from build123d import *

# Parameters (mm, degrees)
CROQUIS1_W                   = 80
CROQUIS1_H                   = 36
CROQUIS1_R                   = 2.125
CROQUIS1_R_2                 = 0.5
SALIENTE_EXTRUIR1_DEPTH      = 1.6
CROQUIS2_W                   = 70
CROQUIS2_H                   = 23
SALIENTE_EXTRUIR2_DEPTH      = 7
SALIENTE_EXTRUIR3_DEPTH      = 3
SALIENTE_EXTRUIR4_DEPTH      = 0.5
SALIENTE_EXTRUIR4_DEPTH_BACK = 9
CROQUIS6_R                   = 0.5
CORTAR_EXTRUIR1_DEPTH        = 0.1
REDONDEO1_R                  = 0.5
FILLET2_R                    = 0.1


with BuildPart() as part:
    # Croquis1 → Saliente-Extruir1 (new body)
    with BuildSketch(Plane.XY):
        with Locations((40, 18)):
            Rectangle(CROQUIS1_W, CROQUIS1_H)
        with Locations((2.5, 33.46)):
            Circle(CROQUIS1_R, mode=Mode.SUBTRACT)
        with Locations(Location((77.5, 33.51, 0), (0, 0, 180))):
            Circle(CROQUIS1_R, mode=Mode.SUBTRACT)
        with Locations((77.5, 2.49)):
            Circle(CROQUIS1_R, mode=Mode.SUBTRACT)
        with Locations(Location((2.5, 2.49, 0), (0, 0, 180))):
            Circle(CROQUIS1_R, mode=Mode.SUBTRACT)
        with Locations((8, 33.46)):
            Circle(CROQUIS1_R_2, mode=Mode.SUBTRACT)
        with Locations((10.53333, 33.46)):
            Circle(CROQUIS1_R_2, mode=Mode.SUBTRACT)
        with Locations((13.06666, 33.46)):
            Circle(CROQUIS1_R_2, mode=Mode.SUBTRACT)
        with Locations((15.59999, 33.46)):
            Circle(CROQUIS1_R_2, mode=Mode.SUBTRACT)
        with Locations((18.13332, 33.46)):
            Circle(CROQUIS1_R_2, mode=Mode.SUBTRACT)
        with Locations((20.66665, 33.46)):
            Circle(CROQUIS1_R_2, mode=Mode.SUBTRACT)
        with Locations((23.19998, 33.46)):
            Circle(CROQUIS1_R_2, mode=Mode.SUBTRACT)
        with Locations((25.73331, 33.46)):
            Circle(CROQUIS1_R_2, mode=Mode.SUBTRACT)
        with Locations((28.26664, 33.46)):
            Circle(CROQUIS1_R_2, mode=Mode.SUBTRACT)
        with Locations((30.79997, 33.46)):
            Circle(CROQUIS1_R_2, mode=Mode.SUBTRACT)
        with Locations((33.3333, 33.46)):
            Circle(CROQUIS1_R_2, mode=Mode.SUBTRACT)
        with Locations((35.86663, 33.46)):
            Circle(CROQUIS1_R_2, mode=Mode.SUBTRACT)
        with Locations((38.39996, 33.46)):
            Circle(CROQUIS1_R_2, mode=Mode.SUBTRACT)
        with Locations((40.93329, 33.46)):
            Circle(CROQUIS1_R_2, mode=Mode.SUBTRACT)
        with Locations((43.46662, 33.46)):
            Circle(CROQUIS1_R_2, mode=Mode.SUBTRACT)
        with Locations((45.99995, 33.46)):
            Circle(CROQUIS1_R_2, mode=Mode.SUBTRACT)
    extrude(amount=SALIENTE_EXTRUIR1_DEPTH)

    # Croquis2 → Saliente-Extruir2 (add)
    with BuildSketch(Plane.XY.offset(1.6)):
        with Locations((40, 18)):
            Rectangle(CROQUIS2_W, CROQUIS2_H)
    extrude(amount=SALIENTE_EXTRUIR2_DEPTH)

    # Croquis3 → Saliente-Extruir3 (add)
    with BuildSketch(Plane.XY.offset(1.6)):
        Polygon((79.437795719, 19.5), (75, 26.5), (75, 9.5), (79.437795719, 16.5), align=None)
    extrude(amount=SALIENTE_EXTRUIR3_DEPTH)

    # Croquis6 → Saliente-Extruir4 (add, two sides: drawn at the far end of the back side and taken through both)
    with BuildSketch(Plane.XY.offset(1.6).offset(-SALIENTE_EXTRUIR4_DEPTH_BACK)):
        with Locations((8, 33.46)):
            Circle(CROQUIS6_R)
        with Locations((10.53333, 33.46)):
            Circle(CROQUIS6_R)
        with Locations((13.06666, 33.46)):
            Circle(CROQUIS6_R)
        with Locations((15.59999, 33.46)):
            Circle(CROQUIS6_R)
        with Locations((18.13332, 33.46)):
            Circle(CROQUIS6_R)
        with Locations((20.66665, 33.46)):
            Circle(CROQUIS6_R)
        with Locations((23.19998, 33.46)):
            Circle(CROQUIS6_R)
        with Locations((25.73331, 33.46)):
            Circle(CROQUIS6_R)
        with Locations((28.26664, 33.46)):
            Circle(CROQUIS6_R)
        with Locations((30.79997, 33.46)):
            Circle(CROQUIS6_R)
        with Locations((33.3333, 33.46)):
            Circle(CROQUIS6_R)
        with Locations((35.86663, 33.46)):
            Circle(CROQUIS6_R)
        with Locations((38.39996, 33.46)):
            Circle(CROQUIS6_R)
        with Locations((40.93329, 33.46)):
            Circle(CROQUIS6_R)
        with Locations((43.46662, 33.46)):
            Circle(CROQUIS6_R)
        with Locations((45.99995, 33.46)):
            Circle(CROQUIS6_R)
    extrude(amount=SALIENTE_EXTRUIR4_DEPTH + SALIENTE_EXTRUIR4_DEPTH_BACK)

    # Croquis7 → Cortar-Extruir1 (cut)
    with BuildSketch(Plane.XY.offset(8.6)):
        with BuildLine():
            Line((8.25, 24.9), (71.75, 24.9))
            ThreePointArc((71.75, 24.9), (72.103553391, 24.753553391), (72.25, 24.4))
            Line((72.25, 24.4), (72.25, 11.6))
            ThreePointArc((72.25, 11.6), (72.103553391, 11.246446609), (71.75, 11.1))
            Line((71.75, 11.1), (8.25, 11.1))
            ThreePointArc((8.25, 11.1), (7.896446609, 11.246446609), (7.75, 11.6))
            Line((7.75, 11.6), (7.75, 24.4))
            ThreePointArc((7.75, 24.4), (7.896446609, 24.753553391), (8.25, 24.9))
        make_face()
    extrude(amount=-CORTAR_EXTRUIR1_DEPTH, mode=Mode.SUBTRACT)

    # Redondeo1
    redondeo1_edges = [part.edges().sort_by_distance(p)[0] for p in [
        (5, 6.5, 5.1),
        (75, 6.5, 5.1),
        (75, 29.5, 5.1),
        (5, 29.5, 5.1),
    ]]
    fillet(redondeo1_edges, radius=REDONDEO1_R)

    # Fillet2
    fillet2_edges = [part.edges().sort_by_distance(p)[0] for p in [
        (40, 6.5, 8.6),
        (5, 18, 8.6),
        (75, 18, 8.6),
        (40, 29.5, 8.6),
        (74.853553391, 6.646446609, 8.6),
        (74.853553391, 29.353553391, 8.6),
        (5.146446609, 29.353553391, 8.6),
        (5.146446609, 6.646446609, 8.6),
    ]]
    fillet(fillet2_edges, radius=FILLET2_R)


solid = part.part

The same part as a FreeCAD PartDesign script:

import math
import FreeCAD as App
import Part
import Sketcher

V = App.Vector
Q = App.Units.Quantity


def edges_at(feature, points):
    """Names of the edges that pass closest to the given points."""
    edges = feature.Shape.Edges
    near = lambda p: min(range(len(edges)), key=lambda i: edges[i].distToShape(Part.Vertex(*p))[0])
    return sorted({f"Edge{near(p) + 1}" for p in points})

doc = App.newDocument("Part")
params = doc.addObject("Spreadsheet::Sheet", "Params")
for row, (alias, value) in enumerate([
    ("sketch1_diameter", "1 mm"),
    ("sketch1_diameter2", "4.25 mm"),
    ("sketch1_width", "80 mm"),
    ("sketch1_height", "36 mm"),
    ("pad1_length", "1.6 mm"),
    ("sketch2_width", "70 mm"),
    ("sketch2_height", "23 mm"),
    ("pad2_length", "7 mm"),
    ("sketch3_height", "17 mm"),
    ("sketch3_height2", "3 mm"),
    ("pad3_length", "3 mm"),
    ("sketch4_diameter", "1 mm"),
    ("pad4_length", "0.5 mm"),
    ("pad4_length2", "9 mm"),
    ("sketch5_radius", "0.5 mm"),
    ("sketch5_width", "63.5 mm"),
    ("sketch5_height", "12.8 mm"),
    ("pocket1_length", "0.1 mm"),
    ("fillet_radius", "0.5 mm"),
    ("fillet2_radius", "0.1 mm"),
], start=1):
    params.set(f"A{row}", alias)
    params.set(f"B{row}", "=" + value)
    params.setAlias(f"B{row}", alias)

body = doc.addObject("PartDesign::Body", "Body")

# Sketch on XY plane
sketch1 = body.newObject("Sketcher::SketchObject", "Sketch")
sketch1.AttachmentSupport = (doc.getObject("XY_Plane"), [""])
sketch1.MapMode = "FlatFace"
sketch1.addGeometry(Part.LineSegment(V(0, 36, 0), V(0, 0, 0)), False)
sketch1.addGeometry(Part.LineSegment(V(0, 0, 0), V(80, 0, 0)), False)
sketch1.addGeometry(Part.LineSegment(V(80, 0, 0), V(80, 36, 0)), False)
sketch1.addGeometry(Part.LineSegment(V(80, 36, 0), V(0, 36, 0)), False)
sketch1.addGeometry(Part.Circle(V(2.5, 2.5, 0), V(0, 0, 1), 2.1), False)
sketch1.addGeometry(Part.Circle(V(77.5, 2.5, 0), V(0, 0, 1), 2.1), False)
sketch1.addGeometry(Part.Circle(V(2.5, 33.5, 0), V(0, 0, 1), 2.1), False)
sketch1.addGeometry(Part.Circle(V(8, 33.5, 0), V(0, 0, 1), 0.5), False)
sketch1.addGeometry(Part.Circle(V(10.5, 33.5, 0), V(0, 0, 1), 0.5), False)
sketch1.addGeometry(Part.Circle(V(13.1, 33.5, 0), V(0, 0, 1), 0.5), False)
sketch1.addGeometry(Part.Circle(V(15.6, 33.5, 0), V(0, 0, 1), 0.5), False)
sketch1.addGeometry(Part.Circle(V(18.1, 33.5, 0), V(0, 0, 1), 0.5), False)
sketch1.addGeometry(Part.Circle(V(20.7, 33.5, 0), V(0, 0, 1), 0.5), False)
sketch1.addGeometry(Part.Circle(V(23.2, 33.5, 0), V(0, 0, 1), 0.5), False)
sketch1.addGeometry(Part.Circle(V(25.7, 33.5, 0), V(0, 0, 1), 0.5), False)
sketch1.addGeometry(Part.Circle(V(28.3, 33.5, 0), V(0, 0, 1), 0.5), False)
sketch1.addGeometry(Part.Circle(V(30.8, 33.5, 0), V(0, 0, 1), 0.5), False)
sketch1.addGeometry(Part.Circle(V(33.3, 33.5, 0), V(0, 0, 1), 0.5), False)
sketch1.addGeometry(Part.Circle(V(35.9, 33.5, 0), V(0, 0, 1), 0.5), False)
sketch1.addGeometry(Part.Circle(V(38.4, 33.5, 0), V(0, 0, 1), 0.5), False)
sketch1.addGeometry(Part.Circle(V(40.9, 33.5, 0), V(0, 0, 1), 0.5), False)
sketch1.addGeometry(Part.Circle(V(43.5, 33.5, 0), V(0, 0, 1), 0.5), False)
sketch1.addGeometry(Part.Circle(V(46, 33.5, 0), V(0, 0, 1), 0.5), False)
sketch1.addGeometry(Part.Circle(V(77.5, 33.5, 0), V(0, 0, 1), 2.1), False)
sketch1.addConstraint(Sketcher.Constraint("Coincident", 0, 2, 1, 1))
sketch1.addConstraint(Sketcher.Constraint("Coincident", 1, 2, 2, 1))
sketch1.addConstraint(Sketcher.Constraint("Coincident", 2, 2, 3, 1))
sketch1.addConstraint(Sketcher.Constraint("Coincident", 3, 2, 0, 1))
sketch1.addConstraint(Sketcher.Constraint("Vertical", 0))
sketch1.addConstraint(Sketcher.Constraint("Horizontal", 1))
sketch1.addConstraint(Sketcher.Constraint("Vertical", 2))
sketch1.addConstraint(Sketcher.Constraint("Horizontal", 3))
sketch1.addConstraint(Sketcher.Constraint("Coincident", 0, 2, -1, 1))
sketch1.addConstraint(Sketcher.Constraint("Equal", 4, 5))
sketch1.addConstraint(Sketcher.Constraint("Equal", 5, 6))
sketch1.addConstraint(Sketcher.Constraint("Equal", 7, 8))
sketch1.addConstraint(Sketcher.Constraint("Equal", 8, 9))
sketch1.addConstraint(Sketcher.Constraint("Equal", 9, 10))
sketch1.addConstraint(Sketcher.Constraint("Equal", 10, 11))
sketch1.addConstraint(Sketcher.Constraint("Equal", 11, 12))
sketch1.addConstraint(Sketcher.Constraint("Equal", 12, 13))
sketch1.addConstraint(Sketcher.Constraint("Equal", 13, 14))
sketch1.addConstraint(Sketcher.Constraint("Equal", 14, 15))
sketch1.addConstraint(Sketcher.Constraint("Equal", 15, 16))
sketch1.addConstraint(Sketcher.Constraint("Equal", 16, 17))
sketch1.addConstraint(Sketcher.Constraint("Equal", 17, 18))
sketch1.addConstraint(Sketcher.Constraint("Equal", 18, 19))
sketch1.addConstraint(Sketcher.Constraint("Equal", 19, 20))
sketch1.addConstraint(Sketcher.Constraint("Equal", 20, 21))
sketch1.addConstraint(Sketcher.Constraint("Equal", 21, 22))
sketch1.addConstraint(Sketcher.Constraint("Equal", 6, 23))
sketch1.addConstraint(Sketcher.Constraint("Horizontal", 4, 3, 5, 3))
sketch1.addConstraint(Sketcher.Constraint("Horizontal", 6, 3, 7, 3))
sketch1.addConstraint(Sketcher.Constraint("Horizontal", 7, 3, 8, 3))
sketch1.addConstraint(Sketcher.Constraint("Horizontal", 8, 3, 9, 3))
sketch1.addConstraint(Sketcher.Constraint("Horizontal", 9, 3, 10, 3))
sketch1.addConstraint(Sketcher.Constraint("Horizontal", 10, 3, 11, 3))
sketch1.addConstraint(Sketcher.Constraint("Horizontal", 11, 3, 12, 3))
sketch1.addConstraint(Sketcher.Constraint("Horizontal", 12, 3, 13, 3))
sketch1.addConstraint(Sketcher.Constraint("Horizontal", 13, 3, 14, 3))
sketch1.addConstraint(Sketcher.Constraint("Horizontal", 14, 3, 15, 3))
sketch1.addConstraint(Sketcher.Constraint("Horizontal", 15, 3, 16, 3))
sketch1.addConstraint(Sketcher.Constraint("Horizontal", 16, 3, 17, 3))
sketch1.addConstraint(Sketcher.Constraint("Horizontal", 17, 3, 18, 3))
sketch1.addConstraint(Sketcher.Constraint("Horizontal", 18, 3, 19, 3))
sketch1.addConstraint(Sketcher.Constraint("Horizontal", 19, 3, 20, 3))
sketch1.addConstraint(Sketcher.Constraint("Horizontal", 20, 3, 21, 3))
sketch1.addConstraint(Sketcher.Constraint("Horizontal", 21, 3, 22, 3))
sketch1.addConstraint(Sketcher.Constraint("Vertical", 4, 3, 6, 3))
sketch1.addConstraint(Sketcher.Constraint("Vertical", 5, 3, 23, 3))
sketch1.addConstraint(Sketcher.Constraint("Diameter", 7, Q("1 mm")))
sketch1.addConstraint(Sketcher.Constraint("Diameter", 4, Q("4.25 mm")))
sketch1.addConstraint(Sketcher.Constraint("DistanceX", 1, 1, 1, 2, Q("80 mm")))
sketch1.addConstraint(Sketcher.Constraint("DistanceY", 0, 2, 0, 1, Q("36 mm")))
sketch1.addConstraint(Sketcher.Constraint("DistanceX", -1, 1, 7, 3, Q("8 mm")))
sketch1.addConstraint(Sketcher.Constraint("DistanceX", 4, 3, 5, 3, Q("75 mm")))
sketch1.addConstraint(Sketcher.Constraint("DistanceX", -1, 1, 4, 3, Q("2.5 mm")))
sketch1.addConstraint(Sketcher.Constraint("DistanceY", -1, 1, 4, 3, Q("2.49 mm")))
sketch1.addConstraint(Sketcher.Constraint("DistanceY", -1, 1, 6, 3, Q("33.46 mm")))
sketch1.addConstraint(Sketcher.Constraint("DistanceY", -1, 1, 23, 3, Q("33.51 mm")))
sketch1.addConstraint(Sketcher.Constraint("DistanceX", -1, 1, 17, 3, Q("33.3333 mm")))
sketch1.addConstraint(Sketcher.Constraint("DistanceX", -1, 1, 8, 3, Q("10.53333 mm")))
sketch1.addConstraint(Sketcher.Constraint("DistanceX", -1, 1, 9, 3, Q("13.06666 mm")))
sketch1.addConstraint(Sketcher.Constraint("DistanceX", -1, 1, 10, 3, Q("15.59999 mm")))
sketch1.addConstraint(Sketcher.Constraint("DistanceX", -1, 1, 11, 3, Q("18.13332 mm")))
sketch1.addConstraint(Sketcher.Constraint("DistanceX", -1, 1, 12, 3, Q("20.66665 mm")))
sketch1.addConstraint(Sketcher.Constraint("DistanceX", -1, 1, 13, 3, Q("23.19998 mm")))
sketch1.addConstraint(Sketcher.Constraint("DistanceX", -1, 1, 14, 3, Q("25.73331 mm")))
sketch1.addConstraint(Sketcher.Constraint("DistanceX", -1, 1, 15, 3, Q("28.26664 mm")))
sketch1.addConstraint(Sketcher.Constraint("DistanceX", -1, 1, 16, 3, Q("30.79997 mm")))
sketch1.addConstraint(Sketcher.Constraint("DistanceX", -1, 1, 18, 3, Q("35.86663 mm")))
sketch1.addConstraint(Sketcher.Constraint("DistanceX", -1, 1, 19, 3, Q("38.39996 mm")))
sketch1.addConstraint(Sketcher.Constraint("DistanceX", -1, 1, 20, 3, Q("40.93329 mm")))
sketch1.addConstraint(Sketcher.Constraint("DistanceX", -1, 1, 21, 3, Q("43.46662 mm")))
sketch1.addConstraint(Sketcher.Constraint("DistanceX", -1, 1, 22, 3, Q("45.99995 mm")))
sketch1.setExpression("Constraints[46]", "Params.sketch1_diameter")
sketch1.setExpression("Constraints[47]", "Params.sketch1_diameter2")
sketch1.setExpression("Constraints[48]", "Params.sketch1_width")
sketch1.setExpression("Constraints[49]", "Params.sketch1_height")
pad1 = body.newObject("PartDesign::Pad", "Pad")
pad1.Profile = sketch1
pad1.setExpression("Length", "Params.pad1_length")

# Sketch on XY plane
sketch2 = body.newObject("Sketcher::SketchObject", "Sketch001")
sketch2.AttachmentSupport = (doc.getObject("XY_Plane"), [""])
sketch2.MapMode = "FlatFace"
sketch2.AttachmentOffset = App.Placement(V(0, 0, 1.6), App.Rotation())
sketch2.addGeometry(Part.LineSegment(V(5, 30, 0), V(5, 6, 0)), False)
sketch2.addGeometry(Part.LineSegment(V(5, 6, 0), V(75, 6, 0)), False)
sketch2.addGeometry(Part.LineSegment(V(75, 6, 0), V(75, 30, 0)), False)
sketch2.addGeometry(Part.LineSegment(V(75, 30, 0), V(5, 30, 0)), False)
sketch2.addConstraint(Sketcher.Constraint("Coincident", 0, 2, 1, 1))
sketch2.addConstraint(Sketcher.Constraint("Coincident", 1, 2, 2, 1))
sketch2.addConstraint(Sketcher.Constraint("Coincident", 2, 2, 3, 1))
sketch2.addConstraint(Sketcher.Constraint("Coincident", 3, 2, 0, 1))
sketch2.addConstraint(Sketcher.Constraint("Vertical", 0))
sketch2.addConstraint(Sketcher.Constraint("Horizontal", 1))
sketch2.addConstraint(Sketcher.Constraint("Vertical", 2))
sketch2.addConstraint(Sketcher.Constraint("Horizontal", 3))
sketch2.addConstraint(Sketcher.Constraint("DistanceX", 1, 1, 1, 2, Q("70 mm")))
sketch2.addConstraint(Sketcher.Constraint("DistanceY", 0, 2, 0, 1, Q("23 mm")))
sketch2.addConstraint(Sketcher.Constraint("DistanceX", -1, 1, 0, 2, Q("5 mm")))
sketch2.addConstraint(Sketcher.Constraint("DistanceY", -1, 1, 0, 2, Q("6.5 mm")))
sketch2.setExpression("Constraints[8]", "Params.sketch2_width")
sketch2.setExpression("Constraints[9]", "Params.sketch2_height")
pad2 = body.newObject("PartDesign::Pad", "Pad001")
pad2.Profile = sketch2
pad2.setExpression("Length", "Params.pad2_length")

# Sketch on XY plane
sketch3 = body.newObject("Sketcher::SketchObject", "Sketch002")
sketch3.AttachmentSupport = (doc.getObject("XY_Plane"), [""])
sketch3.MapMode = "FlatFace"
sketch3.AttachmentOffset = App.Placement(V(0, 0, 1.6), App.Rotation())
sketch3.addGeometry(Part.LineSegment(V(79.4, 19.5, 0), V(75, 26.5, 0)), False)
sketch3.addGeometry(Part.LineSegment(V(75, 26.5, 0), V(75, 9.5, 0)), False)
sketch3.addGeometry(Part.LineSegment(V(75, 9.5, 0), V(79.4, 16.5, 0)), False)
sketch3.addGeometry(Part.LineSegment(V(79.4, 16.5, 0), V(79.4, 19.5, 0)), False)
sketch3.addConstraint(Sketcher.Constraint("Coincident", 0, 2, 1, 1))
sketch3.addConstraint(Sketcher.Constraint("Coincident", 1, 2, 2, 1))
sketch3.addConstraint(Sketcher.Constraint("Coincident", 2, 2, 3, 1))
sketch3.addConstraint(Sketcher.Constraint("Coincident", 3, 2, 0, 1))
sketch3.addConstraint(Sketcher.Constraint("Vertical", 1))
sketch3.addConstraint(Sketcher.Constraint("Vertical", 3))
sketch3.addConstraint(Sketcher.Constraint("Equal", 0, 2))
sketch3.addConstraint(Sketcher.Constraint("DistanceY", 1, 2, 1, 1, Q("17 mm")))
sketch3.addConstraint(Sketcher.Constraint("DistanceY", 3, 1, 3, 2, Q("3 mm")))
sketch3.addConstraint(Sketcher.Constraint("DistanceX", -1, 1, 0, 2, Q("75 mm")))
sketch3.addConstraint(Sketcher.Constraint("DistanceY", -1, 1, 0, 2, Q("26.5 mm")))
sketch3.addConstraint(Sketcher.Constraint("Distance", 0, Q("8.288186 mm")))
sketch3.setExpression("Constraints[7]", "Params.sketch3_height")
sketch3.setExpression("Constraints[8]", "Params.sketch3_height2")
pad3 = body.newObject("PartDesign::Pad", "Pad002")
pad3.Profile = sketch3
pad3.setExpression("Length", "Params.pad3_length")

# Sketch on XY plane
sketch4 = body.newObject("Sketcher::SketchObject", "Sketch003")
sketch4.AttachmentSupport = (doc.getObject("XY_Plane"), [""])
sketch4.MapMode = "FlatFace"
sketch4.AttachmentOffset = App.Placement(V(0, 0, 1.6), App.Rotation())
sketch4.addGeometry(Part.Circle(V(8, 33.5, 0), V(0, 0, 1), 0.5), False)
sketch4.addGeometry(Part.Circle(V(10.5, 33.5, 0), V(0, 0, 1), 0.5), False)
sketch4.addGeometry(Part.Circle(V(13.1, 33.5, 0), V(0, 0, 1), 0.5), False)
sketch4.addGeometry(Part.Circle(V(15.6, 33.5, 0), V(0, 0, 1), 0.5), False)
sketch4.addGeometry(Part.Circle(V(18.1, 33.5, 0), V(0, 0, 1), 0.5), False)
sketch4.addGeometry(Part.Circle(V(20.7, 33.5, 0), V(0, 0, 1), 0.5), False)
sketch4.addGeometry(Part.Circle(V(23.2, 33.5, 0), V(0, 0, 1), 0.5), False)
sketch4.addGeometry(Part.Circle(V(25.7, 33.5, 0), V(0, 0, 1), 0.5), False)
sketch4.addGeometry(Part.Circle(V(28.3, 33.5, 0), V(0, 0, 1), 0.5), False)
sketch4.addGeometry(Part.Circle(V(30.8, 33.5, 0), V(0, 0, 1), 0.5), False)
sketch4.addGeometry(Part.Circle(V(33.3, 33.5, 0), V(0, 0, 1), 0.5), False)
sketch4.addGeometry(Part.Circle(V(35.9, 33.5, 0), V(0, 0, 1), 0.5), False)
sketch4.addGeometry(Part.Circle(V(38.4, 33.5, 0), V(0, 0, 1), 0.5), False)
sketch4.addGeometry(Part.Circle(V(40.9, 33.5, 0), V(0, 0, 1), 0.5), False)
sketch4.addGeometry(Part.Circle(V(43.5, 33.5, 0), V(0, 0, 1), 0.5), False)
sketch4.addGeometry(Part.Circle(V(46, 33.5, 0), V(0, 0, 1), 0.5), False)
sketch4.addConstraint(Sketcher.Constraint("Equal", 0, 1))
sketch4.addConstraint(Sketcher.Constraint("Equal", 1, 2))
sketch4.addConstraint(Sketcher.Constraint("Equal", 2, 3))
sketch4.addConstraint(Sketcher.Constraint("Equal", 3, 4))
sketch4.addConstraint(Sketcher.Constraint("Equal", 4, 5))
sketch4.addConstraint(Sketcher.Constraint("Equal", 5, 6))
sketch4.addConstraint(Sketcher.Constraint("Equal", 6, 7))
sketch4.addConstraint(Sketcher.Constraint("Equal", 7, 8))
sketch4.addConstraint(Sketcher.Constraint("Equal", 8, 9))
sketch4.addConstraint(Sketcher.Constraint("Equal", 9, 10))
sketch4.addConstraint(Sketcher.Constraint("Equal", 10, 11))
sketch4.addConstraint(Sketcher.Constraint("Equal", 11, 12))
sketch4.addConstraint(Sketcher.Constraint("Equal", 12, 13))
sketch4.addConstraint(Sketcher.Constraint("Equal", 13, 14))
sketch4.addConstraint(Sketcher.Constraint("Equal", 14, 15))
sketch4.addConstraint(Sketcher.Constraint("Horizontal", 0, 3, 1, 3))
sketch4.addConstraint(Sketcher.Constraint("Horizontal", 1, 3, 2, 3))
sketch4.addConstraint(Sketcher.Constraint("Horizontal", 2, 3, 3, 3))
sketch4.addConstraint(Sketcher.Constraint("Horizontal", 3, 3, 4, 3))
sketch4.addConstraint(Sketcher.Constraint("Horizontal", 4, 3, 5, 3))
sketch4.addConstraint(Sketcher.Constraint("Horizontal", 5, 3, 6, 3))
sketch4.addConstraint(Sketcher.Constraint("Horizontal", 6, 3, 7, 3))
sketch4.addConstraint(Sketcher.Constraint("Horizontal", 7, 3, 8, 3))
sketch4.addConstraint(Sketcher.Constraint("Horizontal", 8, 3, 9, 3))
sketch4.addConstraint(Sketcher.Constraint("Horizontal", 9, 3, 10, 3))
sketch4.addConstraint(Sketcher.Constraint("Horizontal", 10, 3, 11, 3))
sketch4.addConstraint(Sketcher.Constraint("Horizontal", 11, 3, 12, 3))
sketch4.addConstraint(Sketcher.Constraint("Horizontal", 12, 3, 13, 3))
sketch4.addConstraint(Sketcher.Constraint("Horizontal", 13, 3, 14, 3))
sketch4.addConstraint(Sketcher.Constraint("Horizontal", 14, 3, 15, 3))
sketch4.addConstraint(Sketcher.Constraint("Diameter", 0, Q("1 mm")))
sketch4.addConstraint(Sketcher.Constraint("DistanceX", -1, 1, 0, 3, Q("8 mm")))
sketch4.addConstraint(Sketcher.Constraint("DistanceY", -1, 1, 0, 3, Q("33.46 mm")))
sketch4.addConstraint(Sketcher.Constraint("DistanceX", -1, 1, 10, 3, Q("33.3333 mm")))
sketch4.addConstraint(Sketcher.Constraint("DistanceX", -1, 1, 1, 3, Q("10.53333 mm")))
sketch4.addConstraint(Sketcher.Constraint("DistanceX", -1, 1, 2, 3, Q("13.06666 mm")))
sketch4.addConstraint(Sketcher.Constraint("DistanceX", -1, 1, 3, 3, Q("15.59999 mm")))
sketch4.addConstraint(Sketcher.Constraint("DistanceX", -1, 1, 4, 3, Q("18.13332 mm")))
sketch4.addConstraint(Sketcher.Constraint("DistanceX", -1, 1, 5, 3, Q("20.66665 mm")))
sketch4.addConstraint(Sketcher.Constraint("DistanceX", -1, 1, 6, 3, Q("23.19998 mm")))
sketch4.addConstraint(Sketcher.Constraint("DistanceX", -1, 1, 7, 3, Q("25.73331 mm")))
sketch4.addConstraint(Sketcher.Constraint("DistanceX", -1, 1, 8, 3, Q("28.26664 mm")))
sketch4.addConstraint(Sketcher.Constraint("DistanceX", -1, 1, 9, 3, Q("30.79997 mm")))
sketch4.addConstraint(Sketcher.Constraint("DistanceX", -1, 1, 11, 3, Q("35.86663 mm")))
sketch4.addConstraint(Sketcher.Constraint("DistanceX", -1, 1, 12, 3, Q("38.39996 mm")))
sketch4.addConstraint(Sketcher.Constraint("DistanceX", -1, 1, 13, 3, Q("40.93329 mm")))
sketch4.addConstraint(Sketcher.Constraint("DistanceX", -1, 1, 14, 3, Q("43.46662 mm")))
sketch4.addConstraint(Sketcher.Constraint("DistanceX", -1, 1, 15, 3, Q("45.99995 mm")))
sketch4.setExpression("Constraints[30]", "Params.sketch4_diameter")
pad4 = body.newObject("PartDesign::Pad", "Pad003")
pad4.Profile = sketch4
pad4.Type = "TwoLengths"
pad4.setExpression("Length", "Params.pad4_length")
pad4.setExpression("Length2", "Params.pad4_length2")

# Sketch on XY plane
sketch5 = body.newObject("Sketcher::SketchObject", "Sketch004")
sketch5.AttachmentSupport = (doc.getObject("XY_Plane"), [""])
sketch5.MapMode = "FlatFace"
sketch5.AttachmentOffset = App.Placement(V(0, 0, 8.6), App.Rotation())
sketch5.addGeometry(Part.LineSegment(V(71.75, 24.9, 0), V(8.25, 24.9, 0)), False)
sketch5.addGeometry(Part.ArcOfCircle(Part.Circle(V(8.25, 24.4, 0), V(0, 0, 1), 0.5), math.radians(90), math.radians(180)), False)
sketch5.addGeometry(Part.LineSegment(V(7.75, 24.4, 0), V(7.75, 11.6, 0)), False)
sketch5.addGeometry(Part.ArcOfCircle(Part.Circle(V(8.25, 11.6, 0), V(0, 0, 1), 0.5), math.radians(180), math.radians(270)), False)
sketch5.addGeometry(Part.LineSegment(V(8.25, 11.1, 0), V(71.75, 11.1, 0)), False)
sketch5.addGeometry(Part.ArcOfCircle(Part.Circle(V(71.75, 11.6, 0), V(0, 0, 1), 0.5), math.radians(-90), math.radians(0)), False)
sketch5.addGeometry(Part.LineSegment(V(72.25, 11.6, 0), V(72.25, 24.4, 0)), False)
sketch5.addGeometry(Part.ArcOfCircle(Part.Circle(V(71.75, 24.4, 0), V(0, 0, 1), 0.5), math.radians(0), math.radians(90)), False)
sketch5.addConstraint(Sketcher.Constraint("Tangent", 0, 2, 1, 1))
sketch5.addConstraint(Sketcher.Constraint("Tangent", 1, 2, 2, 1))
sketch5.addConstraint(Sketcher.Constraint("Tangent", 2, 2, 3, 1))
sketch5.addConstraint(Sketcher.Constraint("Tangent", 3, 2, 4, 1))
sketch5.addConstraint(Sketcher.Constraint("Tangent", 4, 2, 5, 1))
sketch5.addConstraint(Sketcher.Constraint("Tangent", 5, 2, 6, 1))
sketch5.addConstraint(Sketcher.Constraint("Tangent", 6, 2, 7, 1))
sketch5.addConstraint(Sketcher.Constraint("Tangent", 7, 2, 0, 1))
sketch5.addConstraint(Sketcher.Constraint("Horizontal", 0))
sketch5.addConstraint(Sketcher.Constraint("Vertical", 2))
sketch5.addConstraint(Sketcher.Constraint("Horizontal", 4))
sketch5.addConstraint(Sketcher.Constraint("Vertical", 6))
sketch5.addConstraint(Sketcher.Constraint("Equal", 1, 3))
sketch5.addConstraint(Sketcher.Constraint("Equal", 3, 5))
sketch5.addConstraint(Sketcher.Constraint("Equal", 5, 7))
sketch5.addConstraint(Sketcher.Constraint("Radius", 1, Q("0.5 mm")))
sketch5.addConstraint(Sketcher.Constraint("DistanceX", 0, 2, 0, 1, Q("63.5 mm")))
sketch5.addConstraint(Sketcher.Constraint("DistanceY", 2, 2, 2, 1, Q("12.8 mm")))
sketch5.addConstraint(Sketcher.Constraint("DistanceY", -1, 1, 1, 3, Q("24.4 mm")))
sketch5.addConstraint(Sketcher.Constraint("DistanceX", -1, 1, 1, 3, Q("8.25 mm")))
sketch5.setExpression("Constraints[15]", "Params.sketch5_radius")
sketch5.setExpression("Constraints[16]", "Params.sketch5_width")
sketch5.setExpression("Constraints[17]", "Params.sketch5_height")
pocket1 = body.newObject("PartDesign::Pocket", "Pocket")
pocket1.Profile = sketch5
pocket1.setExpression("Length", "Params.pocket1_length")
doc.recompute()

fillet = body.newObject("PartDesign::Fillet", "Fillet")
fillet.Base = (pocket1, edges_at(pocket1, [
    (5, 6.5, 5.1),
    (75, 6.5, 5.1),
    (75, 29.5, 5.1),
    (5, 29.5, 5.1),
]))
fillet.setExpression("Radius", "Params.fillet_radius")
doc.recompute()

fillet2 = body.newObject("PartDesign::Fillet", "Fillet001")
fillet2.Base = (fillet, edges_at(fillet, [
    (40, 6.5, 8.6),
    (5, 18, 8.6),
    (75, 18, 8.6),
    (40, 29.5, 8.6),
    (74.854, 6.646, 8.6),
    (74.854, 29.354, 8.6),
    (5.146, 29.354, 8.6),
    (5.146, 6.646, 8.6),
]))
fillet2.setExpression("Radius", "Params.fillet2_radius")

doc.recompute()
